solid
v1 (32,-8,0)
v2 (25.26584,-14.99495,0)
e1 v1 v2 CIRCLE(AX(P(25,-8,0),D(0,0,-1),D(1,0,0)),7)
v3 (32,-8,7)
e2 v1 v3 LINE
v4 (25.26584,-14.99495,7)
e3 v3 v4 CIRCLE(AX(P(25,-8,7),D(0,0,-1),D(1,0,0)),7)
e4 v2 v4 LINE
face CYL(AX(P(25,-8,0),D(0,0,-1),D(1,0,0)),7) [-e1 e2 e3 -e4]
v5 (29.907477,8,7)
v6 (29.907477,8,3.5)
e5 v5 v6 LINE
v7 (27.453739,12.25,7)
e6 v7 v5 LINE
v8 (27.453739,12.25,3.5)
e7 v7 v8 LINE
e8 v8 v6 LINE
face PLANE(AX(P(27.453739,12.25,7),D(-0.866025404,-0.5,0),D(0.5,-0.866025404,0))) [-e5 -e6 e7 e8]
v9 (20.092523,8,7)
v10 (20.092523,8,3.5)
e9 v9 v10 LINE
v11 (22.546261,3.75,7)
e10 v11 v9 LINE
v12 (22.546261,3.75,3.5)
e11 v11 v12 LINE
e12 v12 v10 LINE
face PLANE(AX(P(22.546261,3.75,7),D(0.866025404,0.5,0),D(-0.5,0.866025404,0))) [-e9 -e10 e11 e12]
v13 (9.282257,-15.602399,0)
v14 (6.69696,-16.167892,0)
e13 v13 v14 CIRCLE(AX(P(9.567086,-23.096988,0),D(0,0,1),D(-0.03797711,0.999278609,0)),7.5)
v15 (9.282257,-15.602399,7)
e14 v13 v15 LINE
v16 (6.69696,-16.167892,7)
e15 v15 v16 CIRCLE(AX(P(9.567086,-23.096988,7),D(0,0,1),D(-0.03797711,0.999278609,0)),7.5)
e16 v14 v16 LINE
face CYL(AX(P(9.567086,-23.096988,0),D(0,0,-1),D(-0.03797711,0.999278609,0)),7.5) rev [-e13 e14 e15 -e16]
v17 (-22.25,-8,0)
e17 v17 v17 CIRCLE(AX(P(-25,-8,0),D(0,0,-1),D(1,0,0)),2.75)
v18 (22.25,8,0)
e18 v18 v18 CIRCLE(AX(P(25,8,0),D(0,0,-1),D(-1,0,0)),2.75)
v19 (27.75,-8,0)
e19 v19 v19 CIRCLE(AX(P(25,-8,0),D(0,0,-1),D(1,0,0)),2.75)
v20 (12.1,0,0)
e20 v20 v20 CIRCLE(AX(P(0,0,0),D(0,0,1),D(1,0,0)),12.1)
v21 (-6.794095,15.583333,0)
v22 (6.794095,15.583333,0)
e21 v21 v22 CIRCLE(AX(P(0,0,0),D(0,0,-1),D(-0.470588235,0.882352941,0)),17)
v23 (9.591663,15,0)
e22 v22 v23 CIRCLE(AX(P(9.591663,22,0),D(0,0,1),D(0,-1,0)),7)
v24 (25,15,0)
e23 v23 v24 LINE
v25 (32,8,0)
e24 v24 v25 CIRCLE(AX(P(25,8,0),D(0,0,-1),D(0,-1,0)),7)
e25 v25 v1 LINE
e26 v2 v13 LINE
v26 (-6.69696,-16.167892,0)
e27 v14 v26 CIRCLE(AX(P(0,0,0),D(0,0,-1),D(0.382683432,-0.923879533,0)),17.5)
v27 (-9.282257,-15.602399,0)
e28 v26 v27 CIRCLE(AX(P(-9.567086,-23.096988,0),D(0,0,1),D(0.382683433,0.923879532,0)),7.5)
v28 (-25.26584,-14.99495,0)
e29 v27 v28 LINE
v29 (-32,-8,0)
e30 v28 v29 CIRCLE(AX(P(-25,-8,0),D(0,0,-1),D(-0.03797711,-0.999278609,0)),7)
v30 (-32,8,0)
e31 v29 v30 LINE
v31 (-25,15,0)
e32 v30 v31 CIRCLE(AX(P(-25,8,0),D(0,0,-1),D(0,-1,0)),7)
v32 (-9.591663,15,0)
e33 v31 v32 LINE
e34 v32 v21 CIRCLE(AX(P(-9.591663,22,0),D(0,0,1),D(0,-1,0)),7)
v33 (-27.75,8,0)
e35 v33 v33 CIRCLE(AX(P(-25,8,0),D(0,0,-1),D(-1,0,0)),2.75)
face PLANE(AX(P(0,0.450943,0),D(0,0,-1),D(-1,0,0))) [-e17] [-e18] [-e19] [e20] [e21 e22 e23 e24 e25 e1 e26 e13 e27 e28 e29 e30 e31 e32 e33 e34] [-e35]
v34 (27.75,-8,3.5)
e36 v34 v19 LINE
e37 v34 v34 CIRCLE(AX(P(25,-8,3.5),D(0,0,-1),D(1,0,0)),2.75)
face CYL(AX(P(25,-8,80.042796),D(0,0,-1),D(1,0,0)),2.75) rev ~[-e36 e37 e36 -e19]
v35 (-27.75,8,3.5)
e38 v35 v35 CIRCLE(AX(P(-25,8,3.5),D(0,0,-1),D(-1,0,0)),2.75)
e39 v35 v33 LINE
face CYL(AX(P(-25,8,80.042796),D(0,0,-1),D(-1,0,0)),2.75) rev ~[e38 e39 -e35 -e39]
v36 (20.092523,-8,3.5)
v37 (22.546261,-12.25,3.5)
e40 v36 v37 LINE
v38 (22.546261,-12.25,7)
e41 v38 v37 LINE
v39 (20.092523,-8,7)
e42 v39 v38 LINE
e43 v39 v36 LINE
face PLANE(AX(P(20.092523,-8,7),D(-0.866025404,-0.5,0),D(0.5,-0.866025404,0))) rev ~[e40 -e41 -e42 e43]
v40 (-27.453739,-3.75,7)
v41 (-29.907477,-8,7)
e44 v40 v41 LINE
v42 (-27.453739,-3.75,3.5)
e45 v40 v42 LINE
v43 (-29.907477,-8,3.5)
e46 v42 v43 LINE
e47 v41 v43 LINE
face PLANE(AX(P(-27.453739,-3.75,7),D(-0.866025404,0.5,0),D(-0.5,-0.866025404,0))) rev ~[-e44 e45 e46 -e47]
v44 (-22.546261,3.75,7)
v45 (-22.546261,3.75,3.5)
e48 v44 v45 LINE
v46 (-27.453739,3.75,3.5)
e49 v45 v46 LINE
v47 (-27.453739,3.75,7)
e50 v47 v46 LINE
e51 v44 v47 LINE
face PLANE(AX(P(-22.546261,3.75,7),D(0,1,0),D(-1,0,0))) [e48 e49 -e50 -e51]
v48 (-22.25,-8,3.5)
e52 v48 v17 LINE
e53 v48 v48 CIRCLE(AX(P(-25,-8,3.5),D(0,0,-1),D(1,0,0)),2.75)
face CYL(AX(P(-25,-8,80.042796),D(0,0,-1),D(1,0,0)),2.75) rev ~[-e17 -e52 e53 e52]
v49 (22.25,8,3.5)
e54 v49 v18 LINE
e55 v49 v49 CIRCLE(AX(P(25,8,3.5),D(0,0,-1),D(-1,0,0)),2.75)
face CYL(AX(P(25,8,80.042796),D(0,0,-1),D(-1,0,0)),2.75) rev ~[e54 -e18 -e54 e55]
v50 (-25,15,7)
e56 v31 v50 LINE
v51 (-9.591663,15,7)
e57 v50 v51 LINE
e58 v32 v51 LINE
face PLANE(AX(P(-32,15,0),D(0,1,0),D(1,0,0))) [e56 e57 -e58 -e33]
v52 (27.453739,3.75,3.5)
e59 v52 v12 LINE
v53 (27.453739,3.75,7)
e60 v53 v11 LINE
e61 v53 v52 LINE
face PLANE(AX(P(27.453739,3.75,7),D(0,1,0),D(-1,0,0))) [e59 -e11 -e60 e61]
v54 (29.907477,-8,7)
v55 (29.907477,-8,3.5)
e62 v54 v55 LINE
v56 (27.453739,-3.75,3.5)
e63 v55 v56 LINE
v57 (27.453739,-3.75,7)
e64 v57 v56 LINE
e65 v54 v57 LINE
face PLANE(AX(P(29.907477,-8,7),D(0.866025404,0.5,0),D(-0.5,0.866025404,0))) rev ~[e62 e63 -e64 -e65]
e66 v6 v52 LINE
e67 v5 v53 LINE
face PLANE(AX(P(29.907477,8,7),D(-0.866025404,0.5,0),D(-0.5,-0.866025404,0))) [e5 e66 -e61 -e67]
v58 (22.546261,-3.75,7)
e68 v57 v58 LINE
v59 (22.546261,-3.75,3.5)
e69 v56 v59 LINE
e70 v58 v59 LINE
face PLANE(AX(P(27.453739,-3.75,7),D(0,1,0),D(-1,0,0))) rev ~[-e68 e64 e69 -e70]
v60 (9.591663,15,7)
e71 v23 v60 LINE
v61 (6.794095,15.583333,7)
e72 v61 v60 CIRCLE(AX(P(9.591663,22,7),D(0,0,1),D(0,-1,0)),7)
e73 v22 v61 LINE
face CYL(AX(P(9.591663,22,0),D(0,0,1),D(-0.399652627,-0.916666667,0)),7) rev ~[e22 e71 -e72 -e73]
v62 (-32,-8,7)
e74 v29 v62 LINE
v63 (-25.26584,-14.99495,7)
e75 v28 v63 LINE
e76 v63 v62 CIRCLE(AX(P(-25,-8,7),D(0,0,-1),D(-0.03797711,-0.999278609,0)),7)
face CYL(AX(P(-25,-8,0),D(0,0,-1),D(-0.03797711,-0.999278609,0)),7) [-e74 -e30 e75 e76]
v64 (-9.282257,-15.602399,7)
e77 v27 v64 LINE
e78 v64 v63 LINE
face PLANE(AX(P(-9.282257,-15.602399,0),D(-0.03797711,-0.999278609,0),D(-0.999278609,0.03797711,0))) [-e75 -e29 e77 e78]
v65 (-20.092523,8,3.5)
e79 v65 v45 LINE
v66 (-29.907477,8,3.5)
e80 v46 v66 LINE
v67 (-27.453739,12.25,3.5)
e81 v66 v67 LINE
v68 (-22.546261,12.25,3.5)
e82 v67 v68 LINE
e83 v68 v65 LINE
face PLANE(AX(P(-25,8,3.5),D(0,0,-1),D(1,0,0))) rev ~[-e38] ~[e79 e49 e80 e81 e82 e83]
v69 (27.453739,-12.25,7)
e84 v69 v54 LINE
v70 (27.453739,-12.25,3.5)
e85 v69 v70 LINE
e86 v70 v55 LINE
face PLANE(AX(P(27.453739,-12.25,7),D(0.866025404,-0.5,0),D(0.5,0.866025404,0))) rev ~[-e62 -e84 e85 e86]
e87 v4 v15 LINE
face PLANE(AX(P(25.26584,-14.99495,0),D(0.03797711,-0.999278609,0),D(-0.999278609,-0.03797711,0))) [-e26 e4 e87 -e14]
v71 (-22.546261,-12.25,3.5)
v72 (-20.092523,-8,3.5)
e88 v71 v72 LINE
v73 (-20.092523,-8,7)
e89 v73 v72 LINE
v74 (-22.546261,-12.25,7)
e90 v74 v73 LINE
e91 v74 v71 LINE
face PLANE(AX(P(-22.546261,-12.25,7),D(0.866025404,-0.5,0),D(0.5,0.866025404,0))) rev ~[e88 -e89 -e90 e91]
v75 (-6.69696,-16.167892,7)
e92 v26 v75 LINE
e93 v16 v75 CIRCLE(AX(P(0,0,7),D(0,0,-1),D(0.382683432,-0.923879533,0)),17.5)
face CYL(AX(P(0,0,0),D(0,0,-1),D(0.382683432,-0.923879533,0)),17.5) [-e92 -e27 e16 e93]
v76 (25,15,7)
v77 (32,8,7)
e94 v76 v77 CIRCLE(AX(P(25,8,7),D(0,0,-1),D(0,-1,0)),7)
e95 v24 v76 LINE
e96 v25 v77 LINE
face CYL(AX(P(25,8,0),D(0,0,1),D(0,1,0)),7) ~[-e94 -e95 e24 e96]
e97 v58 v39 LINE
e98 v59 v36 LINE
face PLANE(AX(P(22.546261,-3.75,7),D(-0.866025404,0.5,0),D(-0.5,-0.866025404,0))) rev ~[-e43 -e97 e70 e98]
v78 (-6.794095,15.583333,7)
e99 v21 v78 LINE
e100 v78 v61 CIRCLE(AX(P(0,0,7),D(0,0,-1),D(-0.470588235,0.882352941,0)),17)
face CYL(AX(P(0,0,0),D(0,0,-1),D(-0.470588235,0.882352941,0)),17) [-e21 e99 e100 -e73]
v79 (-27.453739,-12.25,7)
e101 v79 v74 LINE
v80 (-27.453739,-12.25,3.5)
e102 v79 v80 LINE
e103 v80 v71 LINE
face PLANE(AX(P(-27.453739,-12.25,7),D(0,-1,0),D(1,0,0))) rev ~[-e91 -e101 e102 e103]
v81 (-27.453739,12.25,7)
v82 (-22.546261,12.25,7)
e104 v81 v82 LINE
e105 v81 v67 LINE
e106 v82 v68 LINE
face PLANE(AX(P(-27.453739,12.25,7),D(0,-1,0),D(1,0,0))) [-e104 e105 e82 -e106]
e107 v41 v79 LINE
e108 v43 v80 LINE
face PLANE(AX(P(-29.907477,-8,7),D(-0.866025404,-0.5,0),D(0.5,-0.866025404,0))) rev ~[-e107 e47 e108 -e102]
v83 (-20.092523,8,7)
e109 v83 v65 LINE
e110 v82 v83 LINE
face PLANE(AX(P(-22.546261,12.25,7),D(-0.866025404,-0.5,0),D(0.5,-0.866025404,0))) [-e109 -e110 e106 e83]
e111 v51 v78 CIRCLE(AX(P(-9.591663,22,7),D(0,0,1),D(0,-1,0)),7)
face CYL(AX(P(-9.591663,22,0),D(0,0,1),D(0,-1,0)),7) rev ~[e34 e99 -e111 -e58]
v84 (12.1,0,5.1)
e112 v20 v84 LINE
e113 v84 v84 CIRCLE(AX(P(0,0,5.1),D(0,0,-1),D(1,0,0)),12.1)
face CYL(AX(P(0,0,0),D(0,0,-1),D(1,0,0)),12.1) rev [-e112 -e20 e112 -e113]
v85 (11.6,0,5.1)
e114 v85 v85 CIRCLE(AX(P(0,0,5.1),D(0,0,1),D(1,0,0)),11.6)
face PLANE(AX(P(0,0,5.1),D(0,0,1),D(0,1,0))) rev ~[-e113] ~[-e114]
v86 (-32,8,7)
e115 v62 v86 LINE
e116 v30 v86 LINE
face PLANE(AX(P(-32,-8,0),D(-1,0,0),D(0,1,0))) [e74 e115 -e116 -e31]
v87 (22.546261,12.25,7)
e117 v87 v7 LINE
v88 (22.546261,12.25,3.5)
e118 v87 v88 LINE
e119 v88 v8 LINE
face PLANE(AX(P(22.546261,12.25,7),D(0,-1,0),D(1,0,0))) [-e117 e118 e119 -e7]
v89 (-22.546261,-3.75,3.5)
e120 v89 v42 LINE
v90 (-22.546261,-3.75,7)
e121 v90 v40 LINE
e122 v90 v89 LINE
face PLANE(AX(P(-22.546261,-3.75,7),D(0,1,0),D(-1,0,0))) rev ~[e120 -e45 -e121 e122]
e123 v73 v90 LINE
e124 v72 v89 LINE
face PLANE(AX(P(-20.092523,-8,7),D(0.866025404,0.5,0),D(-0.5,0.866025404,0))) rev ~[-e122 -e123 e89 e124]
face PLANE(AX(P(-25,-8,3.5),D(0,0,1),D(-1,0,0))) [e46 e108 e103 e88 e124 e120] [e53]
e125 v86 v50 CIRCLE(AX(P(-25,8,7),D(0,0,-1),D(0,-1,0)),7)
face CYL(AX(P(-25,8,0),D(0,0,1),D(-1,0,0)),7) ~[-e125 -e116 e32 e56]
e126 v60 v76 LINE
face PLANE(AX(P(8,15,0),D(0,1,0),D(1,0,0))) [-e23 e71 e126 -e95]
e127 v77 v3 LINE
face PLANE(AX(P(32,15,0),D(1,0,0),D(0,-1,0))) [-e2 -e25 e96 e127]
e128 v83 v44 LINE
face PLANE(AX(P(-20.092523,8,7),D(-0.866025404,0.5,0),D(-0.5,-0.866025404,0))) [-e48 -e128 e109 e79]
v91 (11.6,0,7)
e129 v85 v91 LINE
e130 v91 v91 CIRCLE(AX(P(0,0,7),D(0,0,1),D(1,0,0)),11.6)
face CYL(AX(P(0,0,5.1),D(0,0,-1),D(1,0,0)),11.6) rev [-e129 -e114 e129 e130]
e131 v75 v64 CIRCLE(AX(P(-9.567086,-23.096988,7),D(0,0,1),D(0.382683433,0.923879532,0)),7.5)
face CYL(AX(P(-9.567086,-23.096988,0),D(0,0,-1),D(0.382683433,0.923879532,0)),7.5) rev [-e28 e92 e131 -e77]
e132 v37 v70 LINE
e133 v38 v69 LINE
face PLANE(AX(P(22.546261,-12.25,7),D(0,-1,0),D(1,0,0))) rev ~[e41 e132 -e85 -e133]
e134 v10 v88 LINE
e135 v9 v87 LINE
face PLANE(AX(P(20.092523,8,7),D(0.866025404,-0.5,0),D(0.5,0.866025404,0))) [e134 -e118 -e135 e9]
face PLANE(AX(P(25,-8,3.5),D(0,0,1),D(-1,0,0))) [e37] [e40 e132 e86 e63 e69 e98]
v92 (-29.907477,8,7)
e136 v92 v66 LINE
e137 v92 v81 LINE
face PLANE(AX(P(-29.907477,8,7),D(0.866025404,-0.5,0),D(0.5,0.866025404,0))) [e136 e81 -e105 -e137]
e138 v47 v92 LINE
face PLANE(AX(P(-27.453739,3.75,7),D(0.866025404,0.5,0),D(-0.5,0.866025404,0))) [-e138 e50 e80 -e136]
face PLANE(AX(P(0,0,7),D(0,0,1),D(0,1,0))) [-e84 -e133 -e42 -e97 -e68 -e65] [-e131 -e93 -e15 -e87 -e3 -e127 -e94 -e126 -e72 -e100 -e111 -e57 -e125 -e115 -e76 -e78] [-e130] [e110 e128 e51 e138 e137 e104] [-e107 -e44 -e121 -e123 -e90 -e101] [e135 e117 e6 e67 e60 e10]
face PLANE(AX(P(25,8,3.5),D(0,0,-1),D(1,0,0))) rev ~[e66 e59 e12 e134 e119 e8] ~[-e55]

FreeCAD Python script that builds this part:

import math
import FreeCAD as App
import Part
import Sketcher
Q = App.Units.Quantity


def edges_at(feature, points):
    """Names of the edges that pass closest to the given points."""
    edges = feature.Shape.Edges
    near = lambda p: min(range(len(edges)), key=lambda i: edges[i].distToShape(Part.Vertex(*p))[0])
    return sorted({f"Edge{near(p) + 1}" for p in points})


def add_polygon(sketch, points):
    """Adds a closed chain of lines whose ends are joined by coincident constraints."""
    first, n = sketch.GeometryCount, len(points)
    for a, b in zip(points, points[1:] + points[:1]):
        sketch.addGeometry(Part.LineSegment(App.Vector(*a, 0), App.Vector(*b, 0)), False)
    for i in range(n):
        sketch.addConstraint(Sketcher.Constraint("Coincident", first + i, 2, first + (i + 1) % n, 1))

doc = App.newDocument("Part")
params = doc.addObject("Spreadsheet::Sheet", "Params")
for row, (alias, value) in enumerate([
    ("sketch1_radius", "7 mm"),
    ("sketch1_radius2", "17 mm"),
    ("sketch1_diameter", "24.2 mm"),
    ("sketch1_radius3", "7.5 mm"),
    ("sketch1_radius4", "17.5 mm"),
    ("pad1_length", "7 mm"),
    ("fillet_radius", "7 mm"),
    ("sketch2_diameter", "24.2 mm"),
    ("sketch2_diameter2", "23.2 mm"),
    ("pad2_length", "1.9 mm"),
    ("sketch3_diameter", "5.5 mm"),
    ("hole_diameter", "5.5 mm"),
    ("sketch4_diameter", "5.5 mm"),
    ("hole2_diameter", "5.5 mm"),
    ("pocket1_length", "3.5 mm"),
], start=1):
    params.set(f"A{row}", alias)
    params.set(f"B{row}", "=" + value)
    params.setAlias(f"B{row}", alias)

body = doc.addObject("PartDesign::Body", "Body")

# Sketch on XY plane
sketch1 = body.newObject("Sketcher::SketchObject", "Sketch")
sketch1.AttachmentSupport = (doc.getObject("XY_Plane"), [""])
sketch1.MapMode = "FlatFace"
sketch1.addGeometry([
    Part.LineSegment(App.Vector(-25.26584, -14.99495, 0), App.Vector(-9.282257, -15.602399, 0)),  # 0
    Part.ArcOfCircle(Part.Circle(App.Vector(-9.567086, -23.096988, 0), App.Vector(0, 0, 1), 7.5), math.radians(67.5), math.radians(87.823548)),  # 1
    Part.ArcOfCircle(Part.Circle(App.Vector(0, 0, 0), App.Vector(0, 0, 1), 17.5), math.radians(-112.5), math.radians(-67.5)),  # 2
    Part.ArcOfCircle(Part.Circle(App.Vector(9.567086, -23.096988, 0), App.Vector(0, 0, 1), 7.5), math.radians(92.176452), math.radians(112.5)),  # 3
    Part.LineSegment(App.Vector(9.282257, -15.602399, 0), App.Vector(25.26584, -14.99495, 0)),  # 4
    Part.ArcOfCircle(Part.Circle(App.Vector(25, -8, 0), App.Vector(0, 0, 1), 7), math.radians(-87.823548), math.radians(0)),  # 5
    Part.LineSegment(App.Vector(32, -8, 0), App.Vector(32, 15, 0)),  # 6
    Part.LineSegment(App.Vector(32, 15, 0), App.Vector(8, 15, 0)),  # 7
    Part.ArcOfCircle(Part.Circle(App.Vector(0, 0, 0), App.Vector(0, 0, 1), 17), math.radians(61.927513), math.radians(118.072487)),  # 8
    Part.LineSegment(App.Vector(-8, 15, 0), App.Vector(-32, 15, 0)),  # 9
    Part.LineSegment(App.Vector(-32, 15, 0), App.Vector(-32, -8, 0)),  # 10
    Part.ArcOfCircle(Part.Circle(App.Vector(-25, -8, 0), App.Vector(0, 0, 1), 7), math.radians(180), math.radians(267.823548)),  # 11
    Part.Circle(App.Vector(0, 0, 0), App.Vector(0, 0, 1), 12.1),  # 12
], False)
sketch1.addConstraint([
    Sketcher.Constraint("Tangent", 0, 2, 1, 2),
    Sketcher.Constraint("Tangent", 1, 1, 2, 1),
    Sketcher.Constraint("Tangent", 2, 2, 3, 2),
    Sketcher.Constraint("Tangent", 3, 1, 4, 1),
    Sketcher.Constraint("Tangent", 4, 2, 5, 1),
    Sketcher.Constraint("Tangent", 5, 2, 6, 1),
    Sketcher.Constraint("Coincident", 6, 2, 7, 1),
    Sketcher.Constraint("Coincident", 7, 2, 8, 1),
    Sketcher.Constraint("Coincident", 8, 2, 9, 1),
    Sketcher.Constraint("Coincident", 9, 2, 10, 1),
    Sketcher.Constraint("Tangent", 10, 2, 11, 1),
    Sketcher.Constraint("Tangent", 11, 2, 0, 1),
    Sketcher.Constraint("Vertical", 6),
    Sketcher.Constraint("Horizontal", 7),
    Sketcher.Constraint("Horizontal", 9),
    Sketcher.Constraint("Vertical", 10),
    Sketcher.Constraint("Coincident", 2, 3, -1, 1),
    Sketcher.Constraint("Coincident", 8, 3, -1, 1),
    Sketcher.Constraint("Coincident", 12, 3, -1, 1),
    Sketcher.Constraint("Equal", 1, 3),
    Sketcher.Constraint("Equal", 5, 11),
    Sketcher.Constraint("Symmetric", 5, 3, 11, 3, -2),
    Sketcher.Constraint("Horizontal", 1, 3, 3, 3),
    Sketcher.Constraint("Horizontal", 7, 2, 8, 2),
    Sketcher.Constraint("Radius", 5, 7.0),
    Sketcher.Constraint("Radius", 8, 17.0),
    Sketcher.Constraint("Diameter", 12, 24.2),
    Sketcher.Constraint("Radius", 1, 7.5),
    Sketcher.Constraint("Radius", 2, 17.5),
    Sketcher.Constraint("DistanceX", 7, 2, 7, 1, 24.0),
    Sketcher.Constraint("DistanceY", 6, 1, 6, 2, 23.0),
    Sketcher.Constraint("DistanceX", -1, 1, 5, 3, 25.0),
    Sketcher.Constraint("DistanceY", 0, 2, -1, 1, 15.602399),
])
sketch1.setExpression("Constraints[24]", "Params.sketch1_radius")
sketch1.setExpression("Constraints[25]", "Params.sketch1_radius2")
sketch1.setExpression("Constraints[26]", "Params.sketch1_diameter")
sketch1.setExpression("Constraints[27]", "Params.sketch1_radius3")
sketch1.setExpression("Constraints[28]", "Params.sketch1_radius4")
pad1 = body.newObject("PartDesign::Pad", "Pad")
pad1.Profile = sketch1
pad1.setExpression("Length", "Params.pad1_length")
doc.recompute()

fillet = body.newObject("PartDesign::Fillet", "Fillet")
fillet.Base = (pad1, edges_at(pad1, [
    (-32, 15, 3.5),
    (-8, 15, 3.5),
    (8, 15, 3.5),
    (32, 15, 3.5),
]))
fillet.setExpression("Radius", "Params.fillet_radius")

# Sketch on XY plane
sketch2 = body.newObject("Sketcher::SketchObject", "Sketch001")
sketch2.AttachmentSupport = (doc.getObject("XY_Plane"), [""])
sketch2.MapMode = "FlatFace"
sketch2.AttachmentOffset = App.Placement(App.Vector(0, 0, 5.1), App.Rotation())
sketch2.addGeometry([
    Part.Circle(App.Vector(0, 0, 0), App.Vector(0, 0, 1), 12.1),
    Part.Circle(App.Vector(0, 0, 0), App.Vector(0, 0, 1), 11.6),
], False)
sketch2.addConstraint([
    Sketcher.Constraint("Coincident", 0, 3, -1, 1),
    Sketcher.Constraint("Coincident", 1, 3, -1, 1),
    Sketcher.Constraint("Diameter", 0, 24.2),
    Sketcher.Constraint("Diameter", 1, 23.2),
])
sketch2.setExpression("Constraints[2]", "Params.sketch2_diameter")
sketch2.setExpression("Constraints[3]", "Params.sketch2_diameter2")
pad2 = body.newObject("PartDesign::Pad", "Pad001")
pad2.Profile = sketch2
pad2.setExpression("Length", "Params.pad2_length")

# Sketch on XY plane
sketch3 = body.newObject("Sketcher::SketchObject", "Sketch002")
sketch3.AttachmentSupport = (doc.getObject("XY_Plane"), [""])
sketch3.MapMode = "FlatFace"
sketch3.AttachmentOffset = App.Placement(App.Vector(0, 0, 7), App.Rotation())
sketch3.addGeometry([
    Part.Circle(App.Vector(-25, 8, 0), App.Vector(0, 0, 1), 2.75),
    Part.Circle(App.Vector(25, 8, 0), App.Vector(0, 0, 1), 2.75),
], False)
sketch3.addConstraint([
    Sketcher.Constraint("Equal", 0, 1),
    Sketcher.Constraint("Symmetric", 0, 3, 1, 3, -2),
    Sketcher.Constraint("Diameter", 0, 5.5),
    Sketcher.Constraint("DistanceX", 0, 3, -1, 1, 25.0),
    Sketcher.Constraint("DistanceY", -1, 1, 0, 3, 8.0),
])
sketch3.setExpression("Constraints[2]", "Params.sketch3_diameter")
doc.recompute()
hole = body.newObject("PartDesign::Hole", "Hole")
hole.Profile = sketch3
hole.ThreadType = "None"
hole.setExpression("Diameter", "Params.hole_diameter")
hole.DepthType = "ThroughAll"

# Sketch on XY plane
sketch4 = body.newObject("Sketcher::SketchObject", "Sketch003")
sketch4.AttachmentSupport = (doc.getObject("XY_Plane"), [""])
sketch4.MapMode = "FlatFace"
sketch4.AttachmentOffset = App.Placement(App.Vector(0, 0, 7), App.Rotation())
sketch4.addGeometry([
    Part.Circle(App.Vector(25, -8, 0), App.Vector(0, 0, 1), 2.75),
    Part.Circle(App.Vector(-25, -8, 0), App.Vector(0, 0, 1), 2.75),
], False)
sketch4.addConstraint([
    Sketcher.Constraint("Equal", 0, 1),
    Sketcher.Constraint("Symmetric", 0, 3, 1, 3, -2),
    Sketcher.Constraint("Diameter", 0, 5.5),
    Sketcher.Constraint("DistanceX", -1, 1, 0, 3, 25.0),
    Sketcher.Constraint("DistanceY", 0, 3, -1, 1, 8.0),
])
sketch4.setExpression("Constraints[2]", "Params.sketch4_diameter")
doc.recompute()
hole2 = body.newObject("PartDesign::Hole", "Hole001")
hole2.Profile = sketch4
hole2.ThreadType = "None"
hole2.setExpression("Diameter", "Params.hole2_diameter")
hole2.DepthType = "ThroughAll"

# Sketch on XY plane
sketch5 = body.newObject("Sketcher::SketchObject", "Sketch004")
sketch5.AttachmentSupport = (doc.getObject("XY_Plane"), [""])
sketch5.MapMode = "FlatFace"
sketch5.AttachmentOffset = App.Placement(App.Vector(0, 0, 7), App.Rotation())
add_polygon(sketch5, [(20.092523, 8), (22.546261, 12.25), (27.453739, 12.25), (29.907477, 8), (27.453739, 3.75), (22.546261, 3.75)])  # lines 0-5
add_polygon(sketch5, [(-27.453739, 3.75), (-29.907477, 8), (-27.453739, 12.25), (-22.546261, 12.25), (-20.092523, 8), (-22.546261, 3.75)])  # lines 6-11
add_polygon(sketch5, [(22.546261, -12.25), (20.092523, -8), (22.546261, -3.75), (27.453739, -3.75), (29.907477, -8), (27.453739, -12.25)])  # lines 12-17
add_polygon(sketch5, [(-20.092523, -8), (-22.546261, -12.25), (-27.453739, -12.25), (-29.907477, -8), (-27.453739, -3.75), (-22.546261, -3.75)])  # lines 18-23
sketch5.addConstraint([
    Sketcher.Constraint("Horizontal", 1),
    Sketcher.Constraint("Horizontal", 4),
    Sketcher.Constraint("Horizontal", 8),
    Sketcher.Constraint("Horizontal", 11),
    Sketcher.Constraint("Horizontal", 14),
    Sketcher.Constraint("Horizontal", 17),
    Sketcher.Constraint("Horizontal", 19),
    Sketcher.Constraint("Horizontal", 22),
    Sketcher.Constraint("Symmetric", 9, 2, 12, 2, -1, 1),
    Sketcher.Constraint("Symmetric", 10, 2, 13, 2, -1, 1),
    Sketcher.Constraint("Symmetric", 6, 2, 15, 2, -1, 1),
    Sketcher.Constraint("Symmetric", 7, 2, 16, 2, -1, 1),
    Sketcher.Constraint("Symmetric", 0, 2, 18, 2, -1, 1),
    Sketcher.Constraint("Symmetric", 2, 2, 20, 2, -1, 1),
    Sketcher.Constraint("Symmetric", 3, 2, 21, 2, -1, 1),
    Sketcher.Constraint("Symmetric", 5, 2, 23, 2, -1, 1),
    Sketcher.Constraint("Symmetric", 2, 2, 6, 2, -2),
    Sketcher.Constraint("Symmetric", 1, 2, 7, 2, -2),
    Sketcher.Constraint("Symmetric", 5, 2, 9, 2, -2),
    Sketcher.Constraint("Symmetric", 4, 2, 10, 2, -2),
    Sketcher.Constraint("Parallel", 0, 3),
    Sketcher.Constraint("Parallel", 2, 5),
    Sketcher.Constraint("Parallel", 5, 6),
    Sketcher.Constraint("Parallel", 3, 7),
    Sketcher.Constraint("Parallel", 6, 9),
    Sketcher.Constraint("Parallel", 9, 12),
    Sketcher.Constraint("Parallel", 12, 15),
    Sketcher.Constraint("Parallel", 15, 20),
    Sketcher.Constraint("Parallel", 20, 23),
    Sketcher.Constraint("Horizontal", 2, 2, 5, 2),
    Sketcher.Constraint("Vertical", 1, 2, 3, 2),
    Sketcher.Constraint("Angle", 0, Q("60 deg")),
    Sketcher.Constraint("DistanceY", -1, 1, 2, 2, 8.0),
    Sketcher.Constraint("DistanceX", 6, 2, 5, 2, 50.0),
    Sketcher.Constraint("DistanceY", 3, 2, 1, 2, 8.5),
    Sketcher.Constraint("DistanceX", 1, 1, 1, 2, 4.907477),
])
pocket1 = body.newObject("PartDesign::Pocket", "Pocket")
pocket1.Profile = sketch5
pocket1.setExpression("Length", "Params.pocket1_length")

doc.recompute()
